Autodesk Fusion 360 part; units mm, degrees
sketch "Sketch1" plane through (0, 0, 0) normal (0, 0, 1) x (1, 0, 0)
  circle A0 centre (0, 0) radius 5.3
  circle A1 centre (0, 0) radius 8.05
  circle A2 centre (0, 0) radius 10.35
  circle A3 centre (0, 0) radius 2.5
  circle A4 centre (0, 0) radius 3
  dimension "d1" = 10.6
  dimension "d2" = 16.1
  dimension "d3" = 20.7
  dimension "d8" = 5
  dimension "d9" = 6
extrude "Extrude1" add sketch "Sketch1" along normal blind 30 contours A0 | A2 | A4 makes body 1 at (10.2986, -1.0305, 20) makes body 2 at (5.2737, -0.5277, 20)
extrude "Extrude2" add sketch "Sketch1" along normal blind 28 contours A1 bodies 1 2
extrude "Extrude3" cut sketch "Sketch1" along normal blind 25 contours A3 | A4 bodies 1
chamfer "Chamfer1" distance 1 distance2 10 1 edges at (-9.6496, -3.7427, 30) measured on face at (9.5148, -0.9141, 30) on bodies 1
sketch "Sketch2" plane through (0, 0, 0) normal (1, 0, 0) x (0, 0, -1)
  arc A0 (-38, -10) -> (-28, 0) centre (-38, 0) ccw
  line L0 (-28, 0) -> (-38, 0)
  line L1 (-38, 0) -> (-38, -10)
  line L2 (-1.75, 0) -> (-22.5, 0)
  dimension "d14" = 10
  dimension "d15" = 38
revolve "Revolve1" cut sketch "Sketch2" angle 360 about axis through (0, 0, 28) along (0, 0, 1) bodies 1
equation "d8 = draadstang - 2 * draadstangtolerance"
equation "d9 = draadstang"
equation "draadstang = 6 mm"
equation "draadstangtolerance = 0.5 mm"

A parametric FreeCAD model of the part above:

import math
import FreeCAD as App
import Part
import Sketcher

V = App.Vector


def edges_at(feature, points):
    """Names of the edges that pass closest to the given points."""
    edges = feature.Shape.Edges
    near = lambda p: min(range(len(edges)), key=lambda i: edges[i].distToShape(Part.Vertex(*p))[0])
    return sorted({f"Edge{near(p) + 1}" for p in points})

doc = App.newDocument("Part")
body = doc.addObject("PartDesign::Body", "Body")
body.AllowCompound = True

# Sketch on XY plane
sketch1 = doc.addObject("Sketcher::SketchObject", "Sketch")
body.addObject(sketch1)
sketch1.AttachmentSupport = (doc.XY_Plane, [""])
sketch1.MapMode = "FlatFace"
sketch1.addGeometry([
    Part.Circle(V(0, 0, 0), V(0, 0, 1), 5.3),
    Part.Circle(V(0, 0, 0), V(0, 0, 1), 2.5),
    Part.Circle(V(0, 0, 0), V(0, 0, 1), 10.3),
    Part.Circle(V(0, 0, 0), V(0, 0, 1), 8.1),
], False)
sketch1.addConstraint([
    Sketcher.Constraint("Coincident", 0, 3, -1, 1),
    Sketcher.Constraint("Coincident", 1, 3, -1, 1),
    Sketcher.Constraint("Coincident", 2, 3, -1, 1),
    Sketcher.Constraint("Coincident", 3, 3, -1, 1),
    Sketcher.Constraint("Diameter", 1, 5.0),
    Sketcher.Constraint("Diameter", 0, 10.6),
    Sketcher.Constraint("Diameter", 2, 20.7),
    Sketcher.Constraint("Diameter", 3, 16.1),
])
pad1 = doc.addObject("PartDesign::Pad", "Pad")
body.addObject(pad1)
pad1.Profile = sketch1
pad1.Length = 30

# Sketch on XY plane
sketch2 = doc.addObject("Sketcher::SketchObject", "Sketch001")
body.addObject(sketch2)
sketch2.AttachmentSupport = (doc.XY_Plane, [""])
sketch2.MapMode = "FlatFace"
sketch2.addGeometry([
    Part.Circle(V(0, 0, 0), V(0, 0, 1), 8),
    Part.Circle(V(0, 0, 0), V(0, 0, 1), 5),
], False)
sketch2.addConstraint([
    Sketcher.Constraint("Coincident", 0, 3, -1, 1),
    Sketcher.Constraint("Coincident", 1, 3, -1, 1),
    Sketcher.Constraint("Diameter", 0, 16.1),
    Sketcher.Constraint("Diameter", 1, 10.6),
])
pad2 = doc.addObject("PartDesign::Pad", "Pad001")
body.addObject(pad2)
pad2.Profile = sketch2
pad2.Length = 28

# Sketch on XY plane
sketch3 = doc.addObject("Sketcher::SketchObject", "Sketch002")
body.addObject(sketch3)
sketch3.AttachmentSupport = (doc.XY_Plane, [""])
sketch3.MapMode = "FlatFace"
sketch3.addGeometry(Part.Circle(V(0, 0, 0), V(0, 0, 1), 3), False)
sketch3.addConstraint([
    Sketcher.Constraint("Coincident", 0, 3, -1, 1),
    Sketcher.Constraint("Diameter", 0, 6.0),
])
pocket1 = doc.addObject("PartDesign::Pocket", "Pocket")
body.addObject(pocket1)
pocket1.Profile = sketch3
pocket1.Length = 25
pocket1.Reversed = True
doc.recompute()

chamfer = doc.addObject("PartDesign::Chamfer", "Chamfer")
body.addObject(chamfer)
chamfer.Base = (pocket1, edges_at(pocket1, [(-9.65, -3.743, 30)]))
chamfer.ChamferType = "Two distances"
chamfer.Size = 1
chamfer.Size2 = 10
chamfer.FlipDirection = True

# Sketch on YZ plane
sketch4 = doc.addObject("Sketcher::SketchObject", "Sketch003")
body.addObject(sketch4)
sketch4.AttachmentSupport = (doc.YZ_Plane, [""])
sketch4.MapMode = "FlatFace"
sketch4.addGeometry([
    Part.LineSegment(V(0, 38, 0), V(-10, 38, 0)),
    Part.ArcOfCircle(Part.Circle(V(0, 38, 0), V(0, 0, 1), 10), math.radians(180), math.radians(270)),
    Part.LineSegment(V(0, 28, 0), V(0, 38, 0)),
], False)
sketch4.addConstraint([
    Sketcher.Constraint("Coincident", 0, 2, 1, 1),
    Sketcher.Constraint("Coincident", 1, 2, 2, 1),
    Sketcher.Constraint("Coincident", 2, 2, 0, 1),
    Sketcher.Constraint("Horizontal", 0),
    Sketcher.Constraint("Vertical", 2),
    Sketcher.Constraint("Coincident", 2, 2, 1, 3),
    Sketcher.Constraint("PointOnObject", 1, 3, -2),
    Sketcher.Constraint("Radius", 1, 10.0),
    Sketcher.Constraint("DistanceY", -1, 1, 1, 3, 38.0),
])
groove = doc.addObject("PartDesign::Groove", "Groove")
body.addObject(groove)
groove.Profile = sketch4
groove.ReferenceAxis = (sketch4, ["V_Axis"])
groove.Angle = 360

doc.recompute()
